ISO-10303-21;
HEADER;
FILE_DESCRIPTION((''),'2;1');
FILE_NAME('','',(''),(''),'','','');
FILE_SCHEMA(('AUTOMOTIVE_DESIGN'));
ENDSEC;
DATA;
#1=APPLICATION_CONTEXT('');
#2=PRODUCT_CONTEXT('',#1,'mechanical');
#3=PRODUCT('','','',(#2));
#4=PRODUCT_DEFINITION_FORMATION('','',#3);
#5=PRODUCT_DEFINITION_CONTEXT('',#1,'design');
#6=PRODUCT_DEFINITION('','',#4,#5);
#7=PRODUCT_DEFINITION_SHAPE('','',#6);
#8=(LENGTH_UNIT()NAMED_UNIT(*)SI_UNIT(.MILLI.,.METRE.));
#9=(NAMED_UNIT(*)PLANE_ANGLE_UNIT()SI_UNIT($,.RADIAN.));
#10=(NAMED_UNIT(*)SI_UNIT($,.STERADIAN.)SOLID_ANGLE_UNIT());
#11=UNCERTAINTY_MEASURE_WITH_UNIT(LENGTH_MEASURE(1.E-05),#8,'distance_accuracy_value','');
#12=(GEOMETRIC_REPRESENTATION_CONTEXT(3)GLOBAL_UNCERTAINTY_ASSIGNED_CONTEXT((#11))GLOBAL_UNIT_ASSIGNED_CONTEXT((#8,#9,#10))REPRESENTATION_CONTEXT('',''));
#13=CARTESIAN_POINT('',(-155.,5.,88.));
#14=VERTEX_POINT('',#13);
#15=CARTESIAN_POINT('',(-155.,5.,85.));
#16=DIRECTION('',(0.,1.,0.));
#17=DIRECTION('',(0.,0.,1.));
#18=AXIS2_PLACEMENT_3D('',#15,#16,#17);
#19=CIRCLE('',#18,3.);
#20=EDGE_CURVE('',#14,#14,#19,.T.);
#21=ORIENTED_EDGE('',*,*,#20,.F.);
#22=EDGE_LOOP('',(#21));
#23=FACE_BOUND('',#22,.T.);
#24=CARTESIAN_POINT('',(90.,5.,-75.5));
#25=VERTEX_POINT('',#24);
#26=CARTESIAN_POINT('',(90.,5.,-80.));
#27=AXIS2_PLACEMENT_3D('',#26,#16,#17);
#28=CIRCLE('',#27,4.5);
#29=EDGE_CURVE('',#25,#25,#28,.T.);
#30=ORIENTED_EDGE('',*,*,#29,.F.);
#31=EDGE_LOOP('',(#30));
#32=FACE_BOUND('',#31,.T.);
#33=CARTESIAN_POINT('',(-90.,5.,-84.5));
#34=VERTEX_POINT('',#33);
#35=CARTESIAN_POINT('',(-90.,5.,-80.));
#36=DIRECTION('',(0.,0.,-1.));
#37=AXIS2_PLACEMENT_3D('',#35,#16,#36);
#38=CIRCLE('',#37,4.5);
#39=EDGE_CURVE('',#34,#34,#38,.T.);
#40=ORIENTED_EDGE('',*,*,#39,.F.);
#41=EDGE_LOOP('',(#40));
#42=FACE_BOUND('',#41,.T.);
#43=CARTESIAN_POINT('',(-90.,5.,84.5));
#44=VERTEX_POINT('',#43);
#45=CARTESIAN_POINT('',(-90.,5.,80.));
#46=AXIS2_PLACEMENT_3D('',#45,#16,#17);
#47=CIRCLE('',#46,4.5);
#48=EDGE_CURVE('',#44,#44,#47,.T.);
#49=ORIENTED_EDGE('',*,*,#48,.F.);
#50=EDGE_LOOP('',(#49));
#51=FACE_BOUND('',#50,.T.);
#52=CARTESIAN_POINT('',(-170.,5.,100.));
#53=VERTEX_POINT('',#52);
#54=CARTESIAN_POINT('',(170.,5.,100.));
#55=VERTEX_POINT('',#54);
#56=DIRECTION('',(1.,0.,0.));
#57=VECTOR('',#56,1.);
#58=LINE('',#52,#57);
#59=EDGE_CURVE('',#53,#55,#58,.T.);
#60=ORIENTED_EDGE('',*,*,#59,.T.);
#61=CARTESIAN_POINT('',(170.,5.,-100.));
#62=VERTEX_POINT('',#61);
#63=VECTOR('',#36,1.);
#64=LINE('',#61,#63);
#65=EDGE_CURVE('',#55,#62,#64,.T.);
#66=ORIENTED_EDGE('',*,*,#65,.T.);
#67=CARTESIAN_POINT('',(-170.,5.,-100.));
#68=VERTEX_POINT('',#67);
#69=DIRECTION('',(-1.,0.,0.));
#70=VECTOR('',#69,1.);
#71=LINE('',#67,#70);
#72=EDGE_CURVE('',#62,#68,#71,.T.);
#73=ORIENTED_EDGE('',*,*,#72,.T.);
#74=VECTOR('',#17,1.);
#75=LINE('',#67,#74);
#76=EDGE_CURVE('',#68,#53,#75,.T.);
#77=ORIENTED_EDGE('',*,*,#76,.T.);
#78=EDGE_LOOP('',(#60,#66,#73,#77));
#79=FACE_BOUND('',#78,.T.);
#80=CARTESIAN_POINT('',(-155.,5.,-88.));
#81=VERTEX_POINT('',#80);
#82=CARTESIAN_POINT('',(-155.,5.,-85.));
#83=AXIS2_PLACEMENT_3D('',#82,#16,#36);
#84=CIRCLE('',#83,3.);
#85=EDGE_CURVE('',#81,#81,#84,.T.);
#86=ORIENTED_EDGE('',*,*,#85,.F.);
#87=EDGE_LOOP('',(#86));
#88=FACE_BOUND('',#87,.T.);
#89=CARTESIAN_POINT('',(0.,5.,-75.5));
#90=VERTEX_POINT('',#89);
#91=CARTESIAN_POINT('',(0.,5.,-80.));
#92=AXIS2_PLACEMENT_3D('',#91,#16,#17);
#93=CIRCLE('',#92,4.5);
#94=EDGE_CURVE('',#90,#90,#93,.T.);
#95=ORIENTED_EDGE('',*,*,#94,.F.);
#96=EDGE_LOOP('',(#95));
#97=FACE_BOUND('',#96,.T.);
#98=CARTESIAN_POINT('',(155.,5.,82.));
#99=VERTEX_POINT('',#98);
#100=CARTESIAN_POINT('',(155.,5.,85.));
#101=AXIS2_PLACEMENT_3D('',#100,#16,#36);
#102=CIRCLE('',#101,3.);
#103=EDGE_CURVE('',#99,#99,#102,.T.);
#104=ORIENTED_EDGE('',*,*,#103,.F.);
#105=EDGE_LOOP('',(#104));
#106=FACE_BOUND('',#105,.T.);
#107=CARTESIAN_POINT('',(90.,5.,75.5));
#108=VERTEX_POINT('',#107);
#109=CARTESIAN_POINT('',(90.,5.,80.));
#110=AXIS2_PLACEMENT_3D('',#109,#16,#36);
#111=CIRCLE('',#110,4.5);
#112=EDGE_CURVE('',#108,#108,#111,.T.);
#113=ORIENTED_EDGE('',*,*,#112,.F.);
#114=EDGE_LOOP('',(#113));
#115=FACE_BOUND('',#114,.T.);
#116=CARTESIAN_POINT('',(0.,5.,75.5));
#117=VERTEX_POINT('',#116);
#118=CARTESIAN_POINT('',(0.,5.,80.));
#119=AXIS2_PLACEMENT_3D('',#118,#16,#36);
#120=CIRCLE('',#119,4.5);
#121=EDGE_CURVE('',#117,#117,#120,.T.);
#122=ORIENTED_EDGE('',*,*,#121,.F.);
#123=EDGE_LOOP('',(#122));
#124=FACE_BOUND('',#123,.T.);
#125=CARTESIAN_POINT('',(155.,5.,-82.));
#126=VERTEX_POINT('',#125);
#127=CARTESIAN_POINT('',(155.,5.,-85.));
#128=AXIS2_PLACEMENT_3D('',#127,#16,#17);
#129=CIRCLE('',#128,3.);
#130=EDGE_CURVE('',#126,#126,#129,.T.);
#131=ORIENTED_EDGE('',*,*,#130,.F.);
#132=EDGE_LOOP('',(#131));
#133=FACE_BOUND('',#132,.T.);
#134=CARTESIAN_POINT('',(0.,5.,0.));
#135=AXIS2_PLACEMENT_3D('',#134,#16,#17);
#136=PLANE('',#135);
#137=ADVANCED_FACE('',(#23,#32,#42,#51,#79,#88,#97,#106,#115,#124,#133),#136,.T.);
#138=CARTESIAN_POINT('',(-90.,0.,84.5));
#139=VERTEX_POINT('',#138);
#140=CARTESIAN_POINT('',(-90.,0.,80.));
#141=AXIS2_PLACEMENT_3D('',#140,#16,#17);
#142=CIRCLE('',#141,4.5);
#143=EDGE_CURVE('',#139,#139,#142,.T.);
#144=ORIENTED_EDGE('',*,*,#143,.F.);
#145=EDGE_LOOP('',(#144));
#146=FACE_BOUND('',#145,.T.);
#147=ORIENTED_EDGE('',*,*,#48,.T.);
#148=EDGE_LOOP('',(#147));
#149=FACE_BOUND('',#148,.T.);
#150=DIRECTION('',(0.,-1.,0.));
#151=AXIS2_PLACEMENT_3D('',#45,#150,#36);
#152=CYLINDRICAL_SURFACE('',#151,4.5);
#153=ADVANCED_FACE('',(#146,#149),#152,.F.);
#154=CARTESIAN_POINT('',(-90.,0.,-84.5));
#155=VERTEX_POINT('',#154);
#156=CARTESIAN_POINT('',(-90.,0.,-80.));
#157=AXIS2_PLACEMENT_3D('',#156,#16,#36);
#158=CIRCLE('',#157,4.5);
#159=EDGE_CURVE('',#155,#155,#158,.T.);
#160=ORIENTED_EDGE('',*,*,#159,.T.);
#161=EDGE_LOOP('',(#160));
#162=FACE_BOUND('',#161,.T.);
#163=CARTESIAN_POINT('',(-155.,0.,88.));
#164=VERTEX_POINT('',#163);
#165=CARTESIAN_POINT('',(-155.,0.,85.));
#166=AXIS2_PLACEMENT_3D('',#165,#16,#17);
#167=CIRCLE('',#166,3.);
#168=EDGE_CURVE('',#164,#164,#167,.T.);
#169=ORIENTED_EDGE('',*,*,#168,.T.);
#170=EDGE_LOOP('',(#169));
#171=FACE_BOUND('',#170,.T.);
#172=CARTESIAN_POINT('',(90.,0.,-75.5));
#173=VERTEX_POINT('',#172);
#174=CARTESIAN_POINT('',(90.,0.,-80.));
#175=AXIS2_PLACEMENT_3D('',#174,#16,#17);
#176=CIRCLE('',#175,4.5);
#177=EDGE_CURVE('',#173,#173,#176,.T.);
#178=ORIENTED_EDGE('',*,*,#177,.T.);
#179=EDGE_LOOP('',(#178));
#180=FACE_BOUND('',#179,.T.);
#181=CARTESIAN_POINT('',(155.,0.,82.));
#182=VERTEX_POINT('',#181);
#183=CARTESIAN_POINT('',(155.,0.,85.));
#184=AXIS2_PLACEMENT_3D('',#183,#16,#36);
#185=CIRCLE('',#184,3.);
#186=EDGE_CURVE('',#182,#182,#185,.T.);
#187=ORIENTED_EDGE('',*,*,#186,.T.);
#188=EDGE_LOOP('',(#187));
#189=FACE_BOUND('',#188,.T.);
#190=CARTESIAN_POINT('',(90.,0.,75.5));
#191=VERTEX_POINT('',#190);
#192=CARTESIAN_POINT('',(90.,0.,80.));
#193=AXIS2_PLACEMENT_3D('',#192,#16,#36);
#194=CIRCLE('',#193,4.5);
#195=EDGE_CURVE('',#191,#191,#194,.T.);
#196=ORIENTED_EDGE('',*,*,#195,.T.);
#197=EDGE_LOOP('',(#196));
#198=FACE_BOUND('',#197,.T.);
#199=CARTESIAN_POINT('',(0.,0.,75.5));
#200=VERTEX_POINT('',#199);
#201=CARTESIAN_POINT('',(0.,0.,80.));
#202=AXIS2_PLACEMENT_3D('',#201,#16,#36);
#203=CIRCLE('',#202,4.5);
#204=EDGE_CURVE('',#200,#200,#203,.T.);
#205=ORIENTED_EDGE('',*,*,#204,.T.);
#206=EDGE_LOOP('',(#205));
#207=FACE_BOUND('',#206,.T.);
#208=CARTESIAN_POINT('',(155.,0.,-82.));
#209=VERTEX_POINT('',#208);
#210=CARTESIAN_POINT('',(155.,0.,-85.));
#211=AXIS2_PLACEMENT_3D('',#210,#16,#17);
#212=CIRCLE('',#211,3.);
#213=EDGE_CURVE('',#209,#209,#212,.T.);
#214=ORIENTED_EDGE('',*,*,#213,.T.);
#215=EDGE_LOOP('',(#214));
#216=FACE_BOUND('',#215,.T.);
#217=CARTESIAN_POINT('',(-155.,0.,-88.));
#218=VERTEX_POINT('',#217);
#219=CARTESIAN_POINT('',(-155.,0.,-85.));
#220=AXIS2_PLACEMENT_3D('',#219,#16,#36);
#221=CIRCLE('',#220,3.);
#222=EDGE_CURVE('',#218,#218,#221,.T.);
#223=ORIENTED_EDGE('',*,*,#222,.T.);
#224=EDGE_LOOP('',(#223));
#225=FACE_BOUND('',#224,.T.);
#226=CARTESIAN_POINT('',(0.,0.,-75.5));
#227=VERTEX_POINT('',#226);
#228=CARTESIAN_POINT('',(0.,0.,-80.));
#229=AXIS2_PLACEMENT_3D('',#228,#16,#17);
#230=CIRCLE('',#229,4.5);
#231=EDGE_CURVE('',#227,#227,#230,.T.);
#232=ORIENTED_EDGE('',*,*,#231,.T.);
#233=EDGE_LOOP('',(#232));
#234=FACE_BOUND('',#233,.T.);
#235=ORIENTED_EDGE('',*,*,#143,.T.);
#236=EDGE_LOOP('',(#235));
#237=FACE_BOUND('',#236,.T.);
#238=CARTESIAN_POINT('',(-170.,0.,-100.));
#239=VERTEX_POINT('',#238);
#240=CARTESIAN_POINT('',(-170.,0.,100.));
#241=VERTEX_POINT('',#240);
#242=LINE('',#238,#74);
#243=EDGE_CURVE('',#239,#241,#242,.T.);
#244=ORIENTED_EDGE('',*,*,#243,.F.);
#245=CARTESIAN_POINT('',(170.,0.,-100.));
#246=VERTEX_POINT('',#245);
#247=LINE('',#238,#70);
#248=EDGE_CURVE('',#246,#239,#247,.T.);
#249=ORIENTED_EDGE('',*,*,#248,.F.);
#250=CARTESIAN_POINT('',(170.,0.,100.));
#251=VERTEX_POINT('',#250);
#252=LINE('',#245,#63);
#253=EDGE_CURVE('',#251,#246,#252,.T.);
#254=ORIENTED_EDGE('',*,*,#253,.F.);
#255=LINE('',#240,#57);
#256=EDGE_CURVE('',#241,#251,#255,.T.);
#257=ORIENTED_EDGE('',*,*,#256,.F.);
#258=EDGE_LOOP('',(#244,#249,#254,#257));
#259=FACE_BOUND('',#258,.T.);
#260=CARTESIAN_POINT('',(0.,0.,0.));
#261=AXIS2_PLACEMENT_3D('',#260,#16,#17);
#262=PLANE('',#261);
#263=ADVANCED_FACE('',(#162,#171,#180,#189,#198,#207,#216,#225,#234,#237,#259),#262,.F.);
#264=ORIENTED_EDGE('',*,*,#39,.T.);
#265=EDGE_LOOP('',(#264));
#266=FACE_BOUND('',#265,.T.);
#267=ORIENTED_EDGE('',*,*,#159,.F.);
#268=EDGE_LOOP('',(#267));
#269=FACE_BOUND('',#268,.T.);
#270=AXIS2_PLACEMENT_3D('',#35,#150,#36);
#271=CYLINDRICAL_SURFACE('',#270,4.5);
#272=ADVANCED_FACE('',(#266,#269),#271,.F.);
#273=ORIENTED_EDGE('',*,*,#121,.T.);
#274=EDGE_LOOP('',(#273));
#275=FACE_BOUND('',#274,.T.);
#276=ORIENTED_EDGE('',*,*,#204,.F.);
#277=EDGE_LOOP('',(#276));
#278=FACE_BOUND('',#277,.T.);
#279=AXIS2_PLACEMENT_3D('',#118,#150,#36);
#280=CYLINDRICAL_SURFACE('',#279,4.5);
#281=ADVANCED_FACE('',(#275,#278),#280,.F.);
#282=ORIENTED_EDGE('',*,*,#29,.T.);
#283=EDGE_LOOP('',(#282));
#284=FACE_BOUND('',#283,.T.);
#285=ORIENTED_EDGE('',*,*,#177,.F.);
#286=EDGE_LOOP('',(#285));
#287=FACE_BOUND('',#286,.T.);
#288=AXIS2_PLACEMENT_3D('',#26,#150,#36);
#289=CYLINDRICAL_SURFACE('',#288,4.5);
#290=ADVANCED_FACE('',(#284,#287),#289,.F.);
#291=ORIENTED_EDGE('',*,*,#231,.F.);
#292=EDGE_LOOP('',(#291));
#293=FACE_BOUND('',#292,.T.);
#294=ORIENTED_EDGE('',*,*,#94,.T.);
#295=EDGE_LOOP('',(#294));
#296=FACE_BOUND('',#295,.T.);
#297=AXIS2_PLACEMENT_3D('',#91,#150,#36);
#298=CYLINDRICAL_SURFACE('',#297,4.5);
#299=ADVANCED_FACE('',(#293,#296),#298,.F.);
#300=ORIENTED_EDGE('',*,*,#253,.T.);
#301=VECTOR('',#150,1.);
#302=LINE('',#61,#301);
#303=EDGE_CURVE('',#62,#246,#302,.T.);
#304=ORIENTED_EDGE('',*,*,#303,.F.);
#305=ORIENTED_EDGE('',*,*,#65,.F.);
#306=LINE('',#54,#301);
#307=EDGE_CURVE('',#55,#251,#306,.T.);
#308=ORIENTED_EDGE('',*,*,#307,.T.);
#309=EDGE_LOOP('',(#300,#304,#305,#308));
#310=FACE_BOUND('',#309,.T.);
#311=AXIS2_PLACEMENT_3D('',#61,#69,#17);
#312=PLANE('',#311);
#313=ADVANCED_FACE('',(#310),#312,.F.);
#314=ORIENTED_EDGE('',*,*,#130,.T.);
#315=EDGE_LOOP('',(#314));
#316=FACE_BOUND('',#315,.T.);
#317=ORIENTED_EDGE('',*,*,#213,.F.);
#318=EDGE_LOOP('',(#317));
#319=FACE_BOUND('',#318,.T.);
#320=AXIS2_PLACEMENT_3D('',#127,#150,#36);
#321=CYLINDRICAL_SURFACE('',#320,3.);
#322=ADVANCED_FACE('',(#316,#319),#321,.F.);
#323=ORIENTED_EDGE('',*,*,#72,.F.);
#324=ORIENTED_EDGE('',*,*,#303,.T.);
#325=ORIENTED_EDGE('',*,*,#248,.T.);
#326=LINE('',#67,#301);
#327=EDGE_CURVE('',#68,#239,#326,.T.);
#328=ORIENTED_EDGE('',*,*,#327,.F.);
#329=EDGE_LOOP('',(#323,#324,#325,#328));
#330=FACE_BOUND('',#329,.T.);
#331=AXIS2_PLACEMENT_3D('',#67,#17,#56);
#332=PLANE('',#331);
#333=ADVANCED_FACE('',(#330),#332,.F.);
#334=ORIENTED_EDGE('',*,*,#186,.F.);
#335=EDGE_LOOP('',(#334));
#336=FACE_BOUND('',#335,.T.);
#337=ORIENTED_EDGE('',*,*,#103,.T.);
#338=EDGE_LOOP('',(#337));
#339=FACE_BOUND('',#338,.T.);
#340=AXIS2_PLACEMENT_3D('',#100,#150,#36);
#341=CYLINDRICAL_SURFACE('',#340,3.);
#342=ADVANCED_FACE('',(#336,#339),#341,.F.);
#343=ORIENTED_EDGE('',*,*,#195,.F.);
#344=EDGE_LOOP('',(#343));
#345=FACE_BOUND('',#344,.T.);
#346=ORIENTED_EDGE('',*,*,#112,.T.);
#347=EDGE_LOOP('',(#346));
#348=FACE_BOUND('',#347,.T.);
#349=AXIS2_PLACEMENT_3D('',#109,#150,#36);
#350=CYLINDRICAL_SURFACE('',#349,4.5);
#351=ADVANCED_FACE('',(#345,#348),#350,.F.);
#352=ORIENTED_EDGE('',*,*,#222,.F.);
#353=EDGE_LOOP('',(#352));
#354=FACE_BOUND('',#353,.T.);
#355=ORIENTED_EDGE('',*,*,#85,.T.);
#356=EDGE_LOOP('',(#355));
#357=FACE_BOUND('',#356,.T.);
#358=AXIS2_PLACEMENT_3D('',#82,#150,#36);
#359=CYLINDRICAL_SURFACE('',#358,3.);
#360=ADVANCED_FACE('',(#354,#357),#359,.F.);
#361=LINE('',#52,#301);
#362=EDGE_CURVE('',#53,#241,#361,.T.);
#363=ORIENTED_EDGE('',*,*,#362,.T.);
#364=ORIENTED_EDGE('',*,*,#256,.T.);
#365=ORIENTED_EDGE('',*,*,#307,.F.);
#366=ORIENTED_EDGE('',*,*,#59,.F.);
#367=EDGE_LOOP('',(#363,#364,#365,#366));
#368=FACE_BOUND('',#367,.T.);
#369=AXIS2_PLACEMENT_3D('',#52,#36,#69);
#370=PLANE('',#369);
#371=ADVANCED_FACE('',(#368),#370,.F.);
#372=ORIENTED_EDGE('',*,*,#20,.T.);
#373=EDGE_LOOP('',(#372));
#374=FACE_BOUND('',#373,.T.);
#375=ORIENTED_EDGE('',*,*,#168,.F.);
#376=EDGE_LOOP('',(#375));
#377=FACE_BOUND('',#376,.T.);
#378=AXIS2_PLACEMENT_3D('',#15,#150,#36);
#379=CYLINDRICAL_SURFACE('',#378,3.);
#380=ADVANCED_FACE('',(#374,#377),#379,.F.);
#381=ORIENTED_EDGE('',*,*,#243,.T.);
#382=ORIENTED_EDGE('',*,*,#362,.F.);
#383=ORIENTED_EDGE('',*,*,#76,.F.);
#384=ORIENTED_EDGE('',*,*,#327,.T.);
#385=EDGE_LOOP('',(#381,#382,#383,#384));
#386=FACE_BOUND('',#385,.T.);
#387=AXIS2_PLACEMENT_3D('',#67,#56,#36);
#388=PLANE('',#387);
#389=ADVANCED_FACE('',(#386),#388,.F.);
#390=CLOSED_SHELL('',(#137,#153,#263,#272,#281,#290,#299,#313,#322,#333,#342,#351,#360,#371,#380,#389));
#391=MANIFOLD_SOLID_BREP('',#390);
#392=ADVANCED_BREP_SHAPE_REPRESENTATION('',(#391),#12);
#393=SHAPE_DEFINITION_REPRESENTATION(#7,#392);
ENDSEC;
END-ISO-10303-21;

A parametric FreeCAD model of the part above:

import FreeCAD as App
import Part
import Sketcher

V = App.Vector

doc = App.newDocument("Part")
body = doc.addObject("PartDesign::Body", "Body")

# Sketch on XZ plane
sketch1 = body.newObject("Sketcher::SketchObject", "Sketch")
sketch1.AttachmentSupport = (doc.getObject("XZ_Plane"), [""])
sketch1.MapMode = "FlatFace"
sketch1.addGeometry(Part.LineSegment(V(-170, -100, 0), V(-170, 100, 0)), False)
sketch1.addGeometry(Part.LineSegment(V(-170, 100, 0), V(170, 100, 0)), False)
sketch1.addGeometry(Part.LineSegment(V(170, 100, 0), V(170, -100, 0)), False)
sketch1.addGeometry(Part.LineSegment(V(170, -100, 0), V(-170, -100, 0)), False)
sketch1.addGeometry(Part.Circle(V(-155, 85, 0), V(0, 0, 1), 3), False)
sketch1.addGeometry(Part.Circle(V(-90, 80, 0), V(0, 0, 1), 4.5), False)
sketch1.addGeometry(Part.Circle(V(0, 80, 0), V(0, 0, 1), 4.5), False)
sketch1.addGeometry(Part.Circle(V(90, 80, 0), V(0, 0, 1), 4.5), False)
sketch1.addGeometry(Part.Circle(V(155, 85, 0), V(0, 0, 1), 3), False)
sketch1.addGeometry(Part.Circle(V(-155, -85, 0), V(0, 0, 1), 3), False)
sketch1.addGeometry(Part.Circle(V(-90, -80, 0), V(0, 0, 1), 4.5), False)
sketch1.addGeometry(Part.Circle(V(0, -80, 0), V(0, 0, 1), 4.5), False)
sketch1.addGeometry(Part.Circle(V(90, -80, 0), V(0, 0, 1), 4.5), False)
sketch1.addGeometry(Part.Circle(V(155, -85, 0), V(0, 0, 1), 3), False)
sketch1.addConstraint(Sketcher.Constraint("Coincident", 0, 2, 1, 1))
sketch1.addConstraint(Sketcher.Constraint("Coincident", 1, 2, 2, 1))
sketch1.addConstraint(Sketcher.Constraint("Coincident", 2, 2, 3, 1))
sketch1.addConstraint(Sketcher.Constraint("Coincident", 3, 2, 0, 1))
sketch1.addConstraint(Sketcher.Constraint("Vertical", 0))
sketch1.addConstraint(Sketcher.Constraint("Horizontal", 1))
sketch1.addConstraint(Sketcher.Constraint("Vertical", 2))
sketch1.addConstraint(Sketcher.Constraint("Horizontal", 3))
sketch1.addConstraint(Sketcher.Constraint("Equal", 5, 6))
sketch1.addConstraint(Sketcher.Constraint("Equal", 6, 7))
sketch1.addConstraint(Sketcher.Constraint("Equal", 4, 8))
sketch1.addConstraint(Sketcher.Constraint("Equal", 8, 9))
sketch1.addConstraint(Sketcher.Constraint("Equal", 7, 10))
sketch1.addConstraint(Sketcher.Constraint("Equal", 10, 11))
sketch1.addConstraint(Sketcher.Constraint("Equal", 11, 12))
sketch1.addConstraint(Sketcher.Constraint("Equal", 9, 13))
sketch1.addConstraint(Sketcher.Constraint("Symmetric", 8, 3, 9, 3, -1, 1))
sketch1.addConstraint(Sketcher.Constraint("Symmetric", 7, 3, 10, 3, -1, 1))
sketch1.addConstraint(Sketcher.Constraint("Symmetric", 6, 3, 11, 3, -1, 1))
sketch1.addConstraint(Sketcher.Constraint("Symmetric", 5, 3, 12, 3, -1, 1))
sketch1.addConstraint(Sketcher.Constraint("Symmetric", 4, 3, 13, 3, -1, 1))
sketch1.addConstraint(Sketcher.Constraint("Symmetric", 0, 2, 2, 2, -1, 1))
sketch1.addConstraint(Sketcher.Constraint("Symmetric", 5, 3, 7, 3, -2))
sketch1.addConstraint(Sketcher.Constraint("Symmetric", 4, 3, 8, 3, -2))
sketch1.addConstraint(Sketcher.Constraint("PointOnObject", 6, 3, -2))
sketch1.addConstraint(Sketcher.Constraint("Horizontal", 5, 3, 6, 3))
sketch1.addConstraint(Sketcher.Constraint("Diameter", 4, 6.0))
sketch1.addConstraint(Sketcher.Constraint("Diameter", 5, 9.0))
sketch1.addConstraint(Sketcher.Constraint("DistanceX", 1, 1, 1, 2, 340.0))
sketch1.addConstraint(Sketcher.Constraint("DistanceY", 0, 1, 0, 2, 200.0))
sketch1.addConstraint(Sketcher.Constraint("DistanceX", 4, 3, -1, 1, 155.0))
sketch1.addConstraint(Sketcher.Constraint("DistanceY", -1, 1, 4, 3, 85.0))
sketch1.addConstraint(Sketcher.Constraint("DistanceX", 5, 3, -1, 1, 90.0))
sketch1.addConstraint(Sketcher.Constraint("DistanceY", -1, 1, 5, 3, 80.0))
pad1 = body.newObject("PartDesign::Pad", "Pad")
pad1.Profile = sketch1
pad1.Length = 5
pad1.Reversed = True

doc.recompute()
